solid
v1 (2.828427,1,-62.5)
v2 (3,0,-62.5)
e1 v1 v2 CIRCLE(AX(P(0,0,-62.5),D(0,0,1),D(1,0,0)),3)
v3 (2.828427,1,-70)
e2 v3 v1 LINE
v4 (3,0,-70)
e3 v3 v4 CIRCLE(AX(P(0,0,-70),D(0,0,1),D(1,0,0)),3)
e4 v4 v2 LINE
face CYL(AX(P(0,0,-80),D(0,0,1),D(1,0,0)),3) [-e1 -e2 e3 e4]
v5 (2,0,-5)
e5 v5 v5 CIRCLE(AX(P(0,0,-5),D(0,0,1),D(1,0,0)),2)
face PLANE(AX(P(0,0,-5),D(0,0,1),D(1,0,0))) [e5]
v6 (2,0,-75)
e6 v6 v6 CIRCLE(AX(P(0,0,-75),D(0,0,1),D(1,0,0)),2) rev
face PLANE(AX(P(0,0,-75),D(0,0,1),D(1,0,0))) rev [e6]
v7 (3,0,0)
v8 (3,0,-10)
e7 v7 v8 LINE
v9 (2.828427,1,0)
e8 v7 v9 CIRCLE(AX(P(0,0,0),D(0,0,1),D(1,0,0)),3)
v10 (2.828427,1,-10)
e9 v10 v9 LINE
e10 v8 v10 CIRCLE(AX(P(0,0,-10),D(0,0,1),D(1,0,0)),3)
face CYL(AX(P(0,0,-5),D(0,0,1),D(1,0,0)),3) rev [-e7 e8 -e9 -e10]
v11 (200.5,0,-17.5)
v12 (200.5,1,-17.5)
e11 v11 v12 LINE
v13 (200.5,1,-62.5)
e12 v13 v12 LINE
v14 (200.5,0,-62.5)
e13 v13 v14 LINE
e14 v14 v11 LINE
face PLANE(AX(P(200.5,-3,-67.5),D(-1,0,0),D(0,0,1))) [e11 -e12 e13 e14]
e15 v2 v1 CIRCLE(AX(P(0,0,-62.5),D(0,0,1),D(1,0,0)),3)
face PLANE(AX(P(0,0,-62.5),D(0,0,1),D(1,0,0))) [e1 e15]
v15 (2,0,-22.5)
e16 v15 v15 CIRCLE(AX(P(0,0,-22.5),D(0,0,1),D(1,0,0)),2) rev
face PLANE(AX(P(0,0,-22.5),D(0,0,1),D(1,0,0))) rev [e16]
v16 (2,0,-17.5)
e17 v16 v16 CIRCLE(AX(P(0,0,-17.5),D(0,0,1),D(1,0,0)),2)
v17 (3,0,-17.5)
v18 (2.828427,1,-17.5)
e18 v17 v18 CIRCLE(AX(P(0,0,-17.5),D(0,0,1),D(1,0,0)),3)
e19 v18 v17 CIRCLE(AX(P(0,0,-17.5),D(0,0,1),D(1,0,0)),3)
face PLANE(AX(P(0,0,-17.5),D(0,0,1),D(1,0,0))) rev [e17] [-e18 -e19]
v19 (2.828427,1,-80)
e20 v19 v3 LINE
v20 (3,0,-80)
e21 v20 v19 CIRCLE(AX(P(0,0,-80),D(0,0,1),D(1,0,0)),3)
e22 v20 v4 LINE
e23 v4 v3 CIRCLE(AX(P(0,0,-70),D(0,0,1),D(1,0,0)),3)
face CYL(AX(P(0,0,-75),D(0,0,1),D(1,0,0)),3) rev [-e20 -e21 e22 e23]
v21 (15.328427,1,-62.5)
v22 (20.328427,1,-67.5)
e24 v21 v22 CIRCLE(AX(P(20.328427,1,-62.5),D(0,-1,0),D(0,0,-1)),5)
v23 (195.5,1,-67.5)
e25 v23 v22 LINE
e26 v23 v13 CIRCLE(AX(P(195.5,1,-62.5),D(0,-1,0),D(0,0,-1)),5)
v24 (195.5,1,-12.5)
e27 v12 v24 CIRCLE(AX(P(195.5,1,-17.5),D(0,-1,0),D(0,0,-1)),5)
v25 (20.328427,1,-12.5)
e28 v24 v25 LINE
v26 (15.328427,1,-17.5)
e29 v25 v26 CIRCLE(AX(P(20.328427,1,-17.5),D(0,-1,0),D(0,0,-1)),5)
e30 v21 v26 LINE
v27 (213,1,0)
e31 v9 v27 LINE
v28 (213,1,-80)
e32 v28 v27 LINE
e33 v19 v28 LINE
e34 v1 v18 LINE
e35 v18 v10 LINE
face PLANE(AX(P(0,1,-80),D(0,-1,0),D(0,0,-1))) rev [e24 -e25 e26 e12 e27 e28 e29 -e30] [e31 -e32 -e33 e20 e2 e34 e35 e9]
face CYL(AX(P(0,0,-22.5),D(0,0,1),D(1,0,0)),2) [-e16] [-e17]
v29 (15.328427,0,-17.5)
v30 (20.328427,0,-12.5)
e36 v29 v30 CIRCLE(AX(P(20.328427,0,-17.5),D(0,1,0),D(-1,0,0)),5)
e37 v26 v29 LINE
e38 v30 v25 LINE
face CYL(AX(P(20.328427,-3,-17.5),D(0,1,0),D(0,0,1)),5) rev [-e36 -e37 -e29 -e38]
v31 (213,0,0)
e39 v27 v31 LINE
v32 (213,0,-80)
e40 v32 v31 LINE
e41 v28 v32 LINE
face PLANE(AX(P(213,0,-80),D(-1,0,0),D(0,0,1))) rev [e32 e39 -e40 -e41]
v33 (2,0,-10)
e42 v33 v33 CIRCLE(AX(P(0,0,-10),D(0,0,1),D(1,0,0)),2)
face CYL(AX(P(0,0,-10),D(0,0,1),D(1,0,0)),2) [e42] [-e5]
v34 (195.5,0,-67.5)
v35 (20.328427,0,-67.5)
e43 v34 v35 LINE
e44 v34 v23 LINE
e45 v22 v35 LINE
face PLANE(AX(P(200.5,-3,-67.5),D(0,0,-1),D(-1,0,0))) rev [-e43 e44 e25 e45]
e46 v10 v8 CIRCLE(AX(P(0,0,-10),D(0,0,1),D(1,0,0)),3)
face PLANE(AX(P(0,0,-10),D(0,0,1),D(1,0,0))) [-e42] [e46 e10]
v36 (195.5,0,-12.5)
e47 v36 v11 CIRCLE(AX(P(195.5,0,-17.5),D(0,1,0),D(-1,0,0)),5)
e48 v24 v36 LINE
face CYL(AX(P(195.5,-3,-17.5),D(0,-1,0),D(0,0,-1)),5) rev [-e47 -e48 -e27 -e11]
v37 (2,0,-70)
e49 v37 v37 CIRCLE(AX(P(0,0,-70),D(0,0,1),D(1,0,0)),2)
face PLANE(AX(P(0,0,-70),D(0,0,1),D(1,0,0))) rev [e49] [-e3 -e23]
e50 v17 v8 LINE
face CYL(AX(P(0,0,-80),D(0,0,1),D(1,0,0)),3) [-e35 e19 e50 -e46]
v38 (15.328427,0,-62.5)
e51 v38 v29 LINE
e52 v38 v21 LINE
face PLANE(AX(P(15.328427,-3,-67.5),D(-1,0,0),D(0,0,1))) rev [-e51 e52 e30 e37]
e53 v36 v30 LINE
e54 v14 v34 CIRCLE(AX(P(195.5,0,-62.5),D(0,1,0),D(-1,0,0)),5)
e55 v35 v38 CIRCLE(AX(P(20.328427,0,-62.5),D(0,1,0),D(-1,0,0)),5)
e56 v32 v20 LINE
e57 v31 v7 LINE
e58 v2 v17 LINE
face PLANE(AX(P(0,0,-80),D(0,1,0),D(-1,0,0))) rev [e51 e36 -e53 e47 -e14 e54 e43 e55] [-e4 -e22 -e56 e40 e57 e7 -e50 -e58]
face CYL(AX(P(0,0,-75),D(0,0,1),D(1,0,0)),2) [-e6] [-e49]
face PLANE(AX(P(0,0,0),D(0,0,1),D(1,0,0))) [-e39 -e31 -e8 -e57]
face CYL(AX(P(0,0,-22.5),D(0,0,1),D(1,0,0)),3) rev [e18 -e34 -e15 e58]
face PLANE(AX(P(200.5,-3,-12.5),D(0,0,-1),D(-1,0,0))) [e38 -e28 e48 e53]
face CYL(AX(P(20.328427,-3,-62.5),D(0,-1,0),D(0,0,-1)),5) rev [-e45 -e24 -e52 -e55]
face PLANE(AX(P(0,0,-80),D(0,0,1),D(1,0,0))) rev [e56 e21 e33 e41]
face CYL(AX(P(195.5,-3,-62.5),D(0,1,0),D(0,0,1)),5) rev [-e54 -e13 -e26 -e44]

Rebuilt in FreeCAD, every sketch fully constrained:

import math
import FreeCAD as App
import Part
import Sketcher

V = App.Vector
Q = App.Units.Quantity


def edges_at(feature, points):
    """Names of the edges that pass closest to the given points."""
    edges = feature.Shape.Edges
    near = lambda p: min(range(len(edges)), key=lambda i: edges[i].distToShape(Part.Vertex(*p))[0])
    return sorted({f"Edge{near(p) + 1}" for p in points})


def add_polygon(sketch, points):
    """Adds a closed chain of lines whose ends are joined by coincident constraints."""
    first, n = sketch.GeometryCount, len(points)
    for a, b in zip(points, points[1:] + points[:1]):
        sketch.addGeometry(Part.LineSegment(App.Vector(*a, 0), App.Vector(*b, 0)), False)
    for i in range(n):
        sketch.addConstraint(Sketcher.Constraint("Coincident", first + i, 2, first + (i + 1) % n, 1))

doc = App.newDocument("Part")
body = doc.addObject("PartDesign::Body", "Body")

sketch1 = body.newObject("Sketcher::SketchObject", "Sketch")
sketch1.AttachmentSupport = (doc.getObject("XY_Plane"), [""])
sketch1.MapMode = "FlatFace"
sketch1.addGeometry(Part.ArcOfCircle(Part.Circle(V(0, 0, 0), V(0, 0, 1), 3), math.radians(19.471221), math.radians(360)), False)
sketch1.addGeometry(Part.LineSegment(V(3, 0, 0), V(213, 0, 0)), False)
sketch1.addGeometry(Part.LineSegment(V(213, 0, 0), V(213, 1, 0)), False)
sketch1.addGeometry(Part.LineSegment(V(213, 1, 0), V(2.828427, 1, 0)), False)
sketch1.addGeometry(Part.Circle(V(0, 0, 0), V(0, 0, 1), 2), False)
sketch1.addConstraint(Sketcher.Constraint("Coincident", 0, 2, 1, 1))
sketch1.addConstraint(Sketcher.Constraint("Coincident", 1, 2, 2, 1))
sketch1.addConstraint(Sketcher.Constraint("Coincident", 2, 2, 3, 1))
sketch1.addConstraint(Sketcher.Constraint("Coincident", 3, 2, 0, 1))
sketch1.addConstraint(Sketcher.Constraint("Horizontal", 1))
sketch1.addConstraint(Sketcher.Constraint("Vertical", 2))
sketch1.addConstraint(Sketcher.Constraint("Horizontal", 3))
sketch1.addConstraint(Sketcher.Constraint("Coincident", 0, 3, -1, 1))
sketch1.addConstraint(Sketcher.Constraint("Coincident", 4, 3, -1, 1))
sketch1.addConstraint(Sketcher.Constraint("PointOnObject", 0, 2, -1))
sketch1.addConstraint(Sketcher.Constraint("Diameter", 4, Q("4 mm")))
sketch1.addConstraint(Sketcher.Constraint("Radius", 0, Q("3 mm")))
sketch1.addConstraint(Sketcher.Constraint("DistanceX", 1, 1, 1, 2, Q("210 mm")))
sketch1.addConstraint(Sketcher.Constraint("DistanceY", 2, 1, 2, 2, Q("1 mm")))
pad1 = body.newObject("PartDesign::Pad", "Pad")
pad1.Profile = sketch1
pad1.Length = 80
pad1.Reversed = True

sketch2 = body.newObject("Sketcher::SketchObject", "Sketch001")
sketch2.AttachmentSupport = (doc.getObject("XY_Plane"), [""])
sketch2.MapMode = "FlatFace"
sketch2.addGeometry(Part.Circle(V(0, 0, 0), V(0, 0, 1), 3), False)
sketch2.addConstraint(Sketcher.Constraint("Coincident", 0, 3, -1, 1))
sketch2.addConstraint(Sketcher.Constraint("Diameter", 0, Q("6 mm")))
pocket1 = body.newObject("PartDesign::Pocket", "Pocket")
pocket1.Profile = sketch2
pocket1.Length = 5

sketch3 = body.newObject("Sketcher::SketchObject", "Sketch002")
sketch3.AttachmentSupport = (doc.getObject("XY_Plane"), [""])
sketch3.MapMode = "FlatFace"
sketch3.AttachmentOffset = App.Placement(V(0, 0, -5), App.Rotation())
sketch3.addGeometry(Part.Circle(V(0, 0, 0), V(0, 0, 1), 2), False)
sketch3.addConstraint(Sketcher.Constraint("Coincident", 0, 3, -1, 1))
sketch3.addConstraint(Sketcher.Constraint("Diameter", 0, Q("4 mm")))
pad2 = body.newObject("PartDesign::Pad", "Pad001")
pad2.Profile = sketch3
pad2.Length = 75
pad2.Reversed = True

sketch4 = body.newObject("Sketcher::SketchObject", "Sketch003")
sketch4.AttachmentSupport = (doc.getObject("XY_Plane"), [""])
sketch4.MapMode = "FlatFace"
sketch4.AttachmentOffset = App.Placement(V(0, 0, -5), App.Rotation())
sketch4.addGeometry(Part.Circle(V(0, 0, 0), V(0, 0, 1), 3), False)
sketch4.addGeometry(Part.Circle(V(0, 0, 0), V(0, 0, 1), 2), False)
sketch4.addConstraint(Sketcher.Constraint("Coincident", 0, 3, -1, 1))
sketch4.addConstraint(Sketcher.Constraint("Coincident", 1, 3, -1, 1))
sketch4.addConstraint(Sketcher.Constraint("Diameter", 0, Q("6 mm")))
sketch4.addConstraint(Sketcher.Constraint("Diameter", 1, Q("4 mm")))
pocket2 = body.newObject("PartDesign::Pocket", "Pocket001")
pocket2.Profile = sketch4
pocket2.Length = 5

sketch5 = body.newObject("Sketcher::SketchObject", "Sketch004")
sketch5.AttachmentSupport = (doc.getObject("XY_Plane"), [""])
sketch5.MapMode = "FlatFace"
sketch5.AttachmentOffset = App.Placement(V(0, 0, -17.5), App.Rotation())
sketch5.addGeometry(Part.Circle(V(0, 0, 0), V(0, 0, 1), 3), False)
sketch5.addGeometry(Part.Circle(V(0, 0, 0), V(0, 0, 1), 2), False)
sketch5.addConstraint(Sketcher.Constraint("Coincident", 0, 3, -1, 1))
sketch5.addConstraint(Sketcher.Constraint("Coincident", 1, 3, -1, 1))
sketch5.addConstraint(Sketcher.Constraint("Diameter", 0, Q("6 mm")))
sketch5.addConstraint(Sketcher.Constraint("Diameter", 1, Q("4 mm")))
pocket3 = body.newObject("PartDesign::Pocket", "Pocket002")
pocket3.Profile = sketch5
pocket3.Length = 5

sketch6 = body.newObject("Sketcher::SketchObject", "Sketch005")
sketch6.AttachmentSupport = (doc.getObject("XY_Plane"), [""])
sketch6.MapMode = "FlatFace"
sketch6.AttachmentOffset = App.Placement(V(0, 0, -22.5), App.Rotation())
sketch6.addGeometry(Part.Circle(V(0, 0, 0), V(0, 0, 1), 3), False)
sketch6.addConstraint(Sketcher.Constraint("Coincident", 0, 3, -1, 1))
sketch6.addConstraint(Sketcher.Constraint("Diameter", 0, Q("6 mm")))
pocket4 = body.newObject("PartDesign::Pocket", "Pocket003")
pocket4.Profile = sketch6
pocket4.Length = 35

sketch7 = body.newObject("Sketcher::SketchObject", "Sketch006")
sketch7.AttachmentSupport = (doc.getObject("XY_Plane"), [""])
sketch7.MapMode = "FlatFace"
sketch7.AttachmentOffset = App.Placement(V(0, 0, -57.5), App.Rotation())
sketch7.addGeometry(Part.Circle(V(0, 0, 0), V(0, 0, 1), 3), False)
sketch7.addGeometry(Part.Circle(V(0, 0, 0), V(0, 0, 1), 2), False)
sketch7.addConstraint(Sketcher.Constraint("Coincident", 0, 3, -1, 1))
sketch7.addConstraint(Sketcher.Constraint("Coincident", 1, 3, -1, 1))
sketch7.addConstraint(Sketcher.Constraint("Diameter", 0, Q("6 mm")))
sketch7.addConstraint(Sketcher.Constraint("Diameter", 1, Q("4 mm")))
pocket5 = body.newObject("PartDesign::Pocket", "Pocket004")
pocket5.Profile = sketch7
pocket5.Length = 5

sketch8 = body.newObject("Sketcher::SketchObject", "Sketch007")
sketch8.AttachmentSupport = (doc.getObject("XY_Plane"), [""])
sketch8.MapMode = "FlatFace"
sketch8.AttachmentOffset = App.Placement(V(0, 0, -70), App.Rotation())
sketch8.addGeometry(Part.Circle(V(0, 0, 0), V(0, 0, 1), 3), False)
sketch8.addGeometry(Part.Circle(V(0, 0, 0), V(0, 0, 1), 2), False)
sketch8.addConstraint(Sketcher.Constraint("Coincident", 0, 3, -1, 1))
sketch8.addConstraint(Sketcher.Constraint("Coincident", 1, 3, -1, 1))
sketch8.addConstraint(Sketcher.Constraint("Diameter", 0, Q("6 mm")))
sketch8.addConstraint(Sketcher.Constraint("Diameter", 1, Q("4 mm")))
pocket6 = body.newObject("PartDesign::Pocket", "Pocket005")
pocket6.Profile = sketch8
pocket6.Length = 5

sketch9 = body.newObject("Sketcher::SketchObject", "Sketch008")
sketch9.AttachmentSupport = (doc.getObject("XY_Plane"), [""])
sketch9.MapMode = "FlatFace"
sketch9.AttachmentOffset = App.Placement(V(0, 0, -75), App.Rotation())
sketch9.addGeometry(Part.Circle(V(0, 0, 0), V(0, 0, 1), 3), False)
sketch9.addConstraint(Sketcher.Constraint("Coincident", 0, 3, -1, 1))
sketch9.addConstraint(Sketcher.Constraint("Diameter", 0, Q("6 mm")))
pocket7 = body.newObject("PartDesign::Pocket", "Pocket006")
pocket7.Profile = sketch9
pocket7.Length = 5

sketch10 = body.newObject("Sketcher::SketchObject", "Sketch009")
sketch10.AttachmentSupport = (doc.getObject("XZ_Plane"), [""])
sketch10.MapMode = "FlatFace"
sketch10.AttachmentOffset = App.Placement(V(0, 0, -1), App.Rotation())
add_polygon(sketch10, [(15.328427, -67.5), (15.328427, -12.5), (200.5, -12.5), (200.5, -67.5)])
sketch10.addConstraint(Sketcher.Constraint("Vertical", 0))
sketch10.addConstraint(Sketcher.Constraint("Horizontal", 1))
sketch10.addConstraint(Sketcher.Constraint("Vertical", 2))
sketch10.addConstraint(Sketcher.Constraint("Horizontal", 3))
sketch10.addConstraint(Sketcher.Constraint("DistanceY", 0, 1, 0, 2, Q("55 mm")))
sketch10.addConstraint(Sketcher.Constraint("DistanceY", 0, 2, -1, 1, Q("12.5 mm")))
sketch10.addConstraint(Sketcher.Constraint("DistanceX", -1, 1, 1, 2, Q("200.5 mm")))
sketch10.addConstraint(Sketcher.Constraint("DistanceX", 1, 1, 1, 2, Q("185.171573 mm")))
pocket8 = body.newObject("PartDesign::Pocket", "Pocket007")
pocket8.Profile = sketch10
pocket8.Type = "ThroughAll"
pocket8.Reversed = True

sketch11 = body.newObject("Sketcher::SketchObject", "Sketch010")
sketch11.AttachmentSupport = (doc.getObject("XY_Plane"), [""])
sketch11.MapMode = "FlatFace"
sketch11.AttachmentOffset = App.Placement(V(0, 0, -57.5), App.Rotation())
sketch11.addGeometry(Part.Circle(V(0, 0, 0), V(0, 0, 1), 2), False)
sketch11.addConstraint(Sketcher.Constraint("Coincident", 0, 3, -1, 1))
sketch11.addConstraint(Sketcher.Constraint("Diameter", 0, Q("4 mm")))
pocket9 = body.newObject("PartDesign::Pocket", "Pocket008")
pocket9.Profile = sketch11
pocket9.Length = 5
doc.recompute()

fillet = body.newObject("PartDesign::Fillet", "Fillet")
fillet.Base = (pocket9, edges_at(pocket9, [
    (200.5, 0.5, -12.5),
    (15.328, 0.5, -12.5),
    (15.328, 0.5, -67.5),
    (200.5, 0.5, -67.5),
]))
fillet.Radius = 5

doc.recompute()
